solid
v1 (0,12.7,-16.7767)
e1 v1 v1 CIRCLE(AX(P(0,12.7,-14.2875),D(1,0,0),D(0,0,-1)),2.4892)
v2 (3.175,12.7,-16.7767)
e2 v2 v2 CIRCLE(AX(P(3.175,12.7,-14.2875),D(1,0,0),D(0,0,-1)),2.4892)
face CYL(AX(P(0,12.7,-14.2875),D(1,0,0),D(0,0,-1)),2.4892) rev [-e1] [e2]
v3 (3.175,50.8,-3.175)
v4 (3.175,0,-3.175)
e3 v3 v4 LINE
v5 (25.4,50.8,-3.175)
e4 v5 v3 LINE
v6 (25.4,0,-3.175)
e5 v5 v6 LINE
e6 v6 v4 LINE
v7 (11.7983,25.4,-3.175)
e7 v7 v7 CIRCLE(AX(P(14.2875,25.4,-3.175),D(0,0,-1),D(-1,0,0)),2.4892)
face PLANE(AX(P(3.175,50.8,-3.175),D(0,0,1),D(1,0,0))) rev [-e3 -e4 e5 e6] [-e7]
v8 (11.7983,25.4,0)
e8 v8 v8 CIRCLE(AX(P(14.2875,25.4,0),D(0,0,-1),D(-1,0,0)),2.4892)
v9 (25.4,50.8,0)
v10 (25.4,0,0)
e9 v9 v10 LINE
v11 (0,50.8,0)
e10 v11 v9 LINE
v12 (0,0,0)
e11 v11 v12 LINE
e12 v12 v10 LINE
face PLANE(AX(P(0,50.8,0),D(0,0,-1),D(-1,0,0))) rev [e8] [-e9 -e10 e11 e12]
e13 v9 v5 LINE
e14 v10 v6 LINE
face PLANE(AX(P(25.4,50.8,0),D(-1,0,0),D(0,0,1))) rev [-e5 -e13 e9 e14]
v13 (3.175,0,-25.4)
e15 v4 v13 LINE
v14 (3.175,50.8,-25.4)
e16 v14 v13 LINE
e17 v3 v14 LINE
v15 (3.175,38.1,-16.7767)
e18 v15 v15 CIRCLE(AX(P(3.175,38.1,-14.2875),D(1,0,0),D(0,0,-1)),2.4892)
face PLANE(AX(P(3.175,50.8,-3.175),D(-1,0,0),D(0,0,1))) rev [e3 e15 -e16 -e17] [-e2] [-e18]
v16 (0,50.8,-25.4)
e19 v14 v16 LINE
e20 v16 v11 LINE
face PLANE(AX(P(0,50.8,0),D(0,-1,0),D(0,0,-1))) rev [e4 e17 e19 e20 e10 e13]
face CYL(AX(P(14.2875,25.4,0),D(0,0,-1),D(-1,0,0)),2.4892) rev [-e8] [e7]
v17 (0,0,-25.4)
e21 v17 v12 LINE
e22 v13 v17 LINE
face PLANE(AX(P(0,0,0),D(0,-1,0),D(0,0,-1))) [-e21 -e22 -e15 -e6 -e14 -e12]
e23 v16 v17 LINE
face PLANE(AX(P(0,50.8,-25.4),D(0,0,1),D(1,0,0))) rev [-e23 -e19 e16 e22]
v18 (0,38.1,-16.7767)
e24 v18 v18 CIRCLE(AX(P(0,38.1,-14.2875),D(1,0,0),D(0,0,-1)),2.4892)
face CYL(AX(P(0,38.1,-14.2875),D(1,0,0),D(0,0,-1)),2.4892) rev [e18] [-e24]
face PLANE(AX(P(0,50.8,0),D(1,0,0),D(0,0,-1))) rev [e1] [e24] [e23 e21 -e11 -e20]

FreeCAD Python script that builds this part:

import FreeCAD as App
import Part
import Sketcher
from FreeCAD import Vector
Q = App.Units.Quantity

doc = App.newDocument("Part")
body = doc.addObject("PartDesign::Body", "Body")

# Sketch on XZ plane
sketch1 = body.newObject("Sketcher::SketchObject", "Sketch")
sketch1.AttachmentSupport = (doc.getObject("XZ_Plane"), [""])
sketch1.MapMode = "FlatFace"
sketch1.addGeometry([
    Part.LineSegment(Vector(25.4, -3.175, 0), Vector(3.175, -3.175, 0)),  # 0
    Part.LineSegment(Vector(3.175, -3.175, 0), Vector(3.175, -25.4, 0)),  # 1
    Part.LineSegment(Vector(3.175, -25.4, 0), Vector(0, -25.4, 0)),  # 2
    Part.LineSegment(Vector(0, -25.4, 0), Vector(0, 0, 0)),  # 3
    Part.LineSegment(Vector(0, 0, 0), Vector(25.4, 0, 0)),  # 4
    Part.LineSegment(Vector(25.4, 0, 0), Vector(25.4, -3.175, 0)),  # 5
], False)
sketch1.addConstraint([
    Sketcher.Constraint("Coincident", 0, 2, 1, 1),
    Sketcher.Constraint("Coincident", 1, 2, 2, 1),
    Sketcher.Constraint("Coincident", 2, 2, 3, 1),
    Sketcher.Constraint("Coincident", 3, 2, 4, 1),
    Sketcher.Constraint("Coincident", 4, 2, 5, 1),
    Sketcher.Constraint("Coincident", 5, 2, 0, 1),
    Sketcher.Constraint("Horizontal", 0),
    Sketcher.Constraint("Vertical", 1),
    Sketcher.Constraint("Horizontal", 2),
    Sketcher.Constraint("Vertical", 3),
    Sketcher.Constraint("Horizontal", 4),
    Sketcher.Constraint("Vertical", 5),
    Sketcher.Constraint("Coincident", 3, 2, -1, 1),
    Sketcher.Constraint("Equal", 0, 1),
    Sketcher.Constraint("Equal", 4, 3),
    Sketcher.Constraint("DistanceX", 4, 1, 4, 2, Q("1 in")),
    Sketcher.Constraint("DistanceX", 0, 2, 0, 1, Q("0.875 in")),
])
pad1 = body.newObject("PartDesign::Pad", "Pad")
pad1.Profile = sketch1
pad1.Length = Q("2 in")
pad1.Reversed = True

# Sketch on XY plane
sketch2 = body.newObject("Sketcher::SketchObject", "Sketch001")
sketch2.AttachmentSupport = (doc.getObject("XY_Plane"), [""])
sketch2.MapMode = "FlatFace"
sketch2.AttachmentOffset = App.Placement(Vector(0, 0, -0.125 * 25.4), App.Rotation())
sketch2.addGeometry(Part.Circle(Vector(14.2875, 25.4, 0), Vector(0, 0, 1), 2.4892), False)
sketch2.addConstraint([
    Sketcher.Constraint("Diameter", 0, Q("0.196 in")),
    Sketcher.Constraint("DistanceY", -1, 1, 0, 3, Q("1 in")),
    Sketcher.Constraint("DistanceX", -1, 1, 0, 3, Q("0.5625 in")),
])
pocket1 = body.newObject("PartDesign::Pocket", "Pocket")
pocket1.Profile = sketch2
pocket1.Type = "ThroughAll"
pocket1.Reversed = True

# Sketch on YZ plane
sketch3 = body.newObject("Sketcher::SketchObject", "Sketch002")
sketch3.AttachmentSupport = (doc.getObject("YZ_Plane"), [""])
sketch3.MapMode = "FlatFace"
sketch3.AttachmentOffset = App.Placement(Vector(0, 0, 0.125 * 25.4), App.Rotation())
sketch3.addGeometry([
    Part.Circle(Vector(12.7, -14.2875, 0), Vector(0, 0, 1), 2.4892),
    Part.Circle(Vector(38.1, -14.2875, 0), Vector(0, 0, 1), 2.4892),
], False)
sketch3.addConstraint([
    Sketcher.Constraint("Equal", 0, 1),
    Sketcher.Constraint("Horizontal", 0, 3, 1, 3),
    Sketcher.Constraint("Diameter", 0, Q("0.196 in")),
    Sketcher.Constraint("DistanceX", 0, 3, 1, 3, Q("1 in")),
    Sketcher.Constraint("DistanceX", -1, 1, 0, 3, Q("0.5 in")),
    Sketcher.Constraint("DistanceY", 0, 3, -1, 1, Q("0.5625 in")),
])
pocket2 = body.newObject("PartDesign::Pocket", "Pocket001")
pocket2.Profile = sketch3
pocket2.Type = "ThroughAll"

doc.recompute()
